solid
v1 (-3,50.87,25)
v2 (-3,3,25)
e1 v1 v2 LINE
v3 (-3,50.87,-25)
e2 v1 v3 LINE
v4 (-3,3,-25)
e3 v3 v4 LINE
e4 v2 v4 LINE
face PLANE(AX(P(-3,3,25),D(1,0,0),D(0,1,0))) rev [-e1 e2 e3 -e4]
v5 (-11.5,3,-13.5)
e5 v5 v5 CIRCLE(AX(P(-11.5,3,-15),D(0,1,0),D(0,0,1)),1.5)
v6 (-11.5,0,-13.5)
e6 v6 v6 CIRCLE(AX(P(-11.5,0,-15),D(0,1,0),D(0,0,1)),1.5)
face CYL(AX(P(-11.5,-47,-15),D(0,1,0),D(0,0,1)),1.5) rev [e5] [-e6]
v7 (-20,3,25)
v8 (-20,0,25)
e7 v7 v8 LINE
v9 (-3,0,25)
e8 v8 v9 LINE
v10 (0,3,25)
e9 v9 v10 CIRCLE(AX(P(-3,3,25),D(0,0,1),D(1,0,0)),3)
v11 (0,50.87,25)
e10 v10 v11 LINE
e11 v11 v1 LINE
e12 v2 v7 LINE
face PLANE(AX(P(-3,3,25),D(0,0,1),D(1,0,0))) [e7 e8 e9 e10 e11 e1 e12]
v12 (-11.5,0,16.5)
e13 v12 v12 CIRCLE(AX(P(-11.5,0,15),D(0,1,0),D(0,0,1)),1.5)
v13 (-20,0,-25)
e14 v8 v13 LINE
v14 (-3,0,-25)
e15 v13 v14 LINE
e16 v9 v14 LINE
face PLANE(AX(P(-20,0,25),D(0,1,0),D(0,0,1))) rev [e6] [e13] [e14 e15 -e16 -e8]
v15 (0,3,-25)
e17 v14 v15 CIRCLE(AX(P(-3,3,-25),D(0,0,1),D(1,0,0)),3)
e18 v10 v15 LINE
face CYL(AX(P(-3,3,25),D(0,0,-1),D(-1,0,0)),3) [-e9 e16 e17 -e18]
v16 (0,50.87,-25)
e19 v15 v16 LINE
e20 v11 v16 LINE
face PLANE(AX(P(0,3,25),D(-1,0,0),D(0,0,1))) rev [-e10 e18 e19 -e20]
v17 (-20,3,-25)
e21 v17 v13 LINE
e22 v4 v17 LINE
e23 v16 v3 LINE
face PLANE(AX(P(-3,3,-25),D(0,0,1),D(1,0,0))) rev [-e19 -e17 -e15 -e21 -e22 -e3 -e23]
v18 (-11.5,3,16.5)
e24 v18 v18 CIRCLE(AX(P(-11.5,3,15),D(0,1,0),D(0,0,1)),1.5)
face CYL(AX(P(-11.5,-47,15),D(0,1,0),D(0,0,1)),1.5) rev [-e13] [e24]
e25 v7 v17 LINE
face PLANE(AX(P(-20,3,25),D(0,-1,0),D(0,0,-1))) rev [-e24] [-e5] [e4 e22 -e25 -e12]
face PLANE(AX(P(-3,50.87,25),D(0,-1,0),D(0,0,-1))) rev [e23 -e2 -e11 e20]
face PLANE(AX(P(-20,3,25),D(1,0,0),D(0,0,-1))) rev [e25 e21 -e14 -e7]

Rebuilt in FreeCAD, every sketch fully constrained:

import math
import FreeCAD as App
import Part
import Sketcher

V = App.Vector

doc = App.newDocument("Part")
body = doc.addObject("PartDesign::Body", "Body")

# Sketch on XY plane
sketch1 = doc.addObject("Sketcher::SketchObject", "Sketch")
body.addObject(sketch1)
sketch1.AttachmentSupport = (doc.XY_Plane, [""])
sketch1.MapMode = "FlatFace"
sketch1.addGeometry([
    Part.LineSegment(V(-20, 0, 0), V(-3, 0, 0)),  # 0
    Part.ArcOfCircle(Part.Circle(V(-3, 3, 0), V(0, 0, 1), 3), math.radians(-90), math.radians(0)),  # 1
    Part.LineSegment(V(0, 3, 0), V(0, 50.87, 0)),  # 2
    Part.LineSegment(V(0, 50.87, 0), V(-3, 50.87, 0)),  # 3
    Part.LineSegment(V(-3, 50.87, 0), V(-3, 3, 0)),  # 4
    Part.LineSegment(V(-3, 3, 0), V(-20, 3, 0)),  # 5
    Part.LineSegment(V(-20, 3, 0), V(-20, 0, 0)),  # 6
], False)
sketch1.addConstraint([
    Sketcher.Constraint("Tangent", 0, 2, 1, 1),
    Sketcher.Constraint("Tangent", 1, 2, 2, 1),
    Sketcher.Constraint("Coincident", 2, 2, 3, 1),
    Sketcher.Constraint("Coincident", 3, 2, 4, 1),
    Sketcher.Constraint("Coincident", 4, 2, 5, 1),
    Sketcher.Constraint("Coincident", 5, 2, 6, 1),
    Sketcher.Constraint("Coincident", 6, 2, 0, 1),
    Sketcher.Constraint("Horizontal", 0),
    Sketcher.Constraint("Vertical", 2),
    Sketcher.Constraint("Horizontal", 3),
    Sketcher.Constraint("Vertical", 4),
    Sketcher.Constraint("Horizontal", 5),
    Sketcher.Constraint("Vertical", 6),
    Sketcher.Constraint("Coincident", 4, 2, 1, 3),
    Sketcher.Constraint("PointOnObject", 0, 2, -1),
    Sketcher.Constraint("PointOnObject", 1, 2, -2),
    Sketcher.Constraint("Radius", 1, 3.0),
    Sketcher.Constraint("DistanceX", 0, 1, 0, 2, 17.0),
    Sketcher.Constraint("DistanceY", 2, 1, 2, 2, 47.87),
])
pad1 = doc.addObject("PartDesign::Pad", "Pad")
body.addObject(pad1)
pad1.Profile = sketch1
pad1.Length = 50
pad1.Midplane = True

# Sketch on XZ plane
sketch2 = doc.addObject("Sketcher::SketchObject", "Sketch001")
body.addObject(sketch2)
sketch2.AttachmentSupport = (doc.XZ_Plane, [""])
sketch2.MapMode = "FlatFace"
sketch2.AttachmentOffset = App.Placement(V(0, 0, -3), App.Rotation())
sketch2.addGeometry([
    Part.Circle(V(-11.5, -15, 0), V(0, 0, 1), 1.5),
    Part.Circle(V(-11.5, 15, 0), V(0, 0, 1), 1.5),
], False)
sketch2.addConstraint([
    Sketcher.Constraint("Equal", 0, 1),
    Sketcher.Constraint("Symmetric", 0, 3, 1, 3, -1),
    Sketcher.Constraint("Diameter", 0, 3.0),
    Sketcher.Constraint("DistanceY", 0, 3, -1, 1, 15.0),
    Sketcher.Constraint("DistanceX", 0, 3, -1, 1, 11.5),
])
pocket1 = doc.addObject("PartDesign::Pocket", "Pocket")
body.addObject(pocket1)
pocket1.Profile = sketch2
pocket1.Length = 50
pocket1.Reversed = True

doc.recompute()
